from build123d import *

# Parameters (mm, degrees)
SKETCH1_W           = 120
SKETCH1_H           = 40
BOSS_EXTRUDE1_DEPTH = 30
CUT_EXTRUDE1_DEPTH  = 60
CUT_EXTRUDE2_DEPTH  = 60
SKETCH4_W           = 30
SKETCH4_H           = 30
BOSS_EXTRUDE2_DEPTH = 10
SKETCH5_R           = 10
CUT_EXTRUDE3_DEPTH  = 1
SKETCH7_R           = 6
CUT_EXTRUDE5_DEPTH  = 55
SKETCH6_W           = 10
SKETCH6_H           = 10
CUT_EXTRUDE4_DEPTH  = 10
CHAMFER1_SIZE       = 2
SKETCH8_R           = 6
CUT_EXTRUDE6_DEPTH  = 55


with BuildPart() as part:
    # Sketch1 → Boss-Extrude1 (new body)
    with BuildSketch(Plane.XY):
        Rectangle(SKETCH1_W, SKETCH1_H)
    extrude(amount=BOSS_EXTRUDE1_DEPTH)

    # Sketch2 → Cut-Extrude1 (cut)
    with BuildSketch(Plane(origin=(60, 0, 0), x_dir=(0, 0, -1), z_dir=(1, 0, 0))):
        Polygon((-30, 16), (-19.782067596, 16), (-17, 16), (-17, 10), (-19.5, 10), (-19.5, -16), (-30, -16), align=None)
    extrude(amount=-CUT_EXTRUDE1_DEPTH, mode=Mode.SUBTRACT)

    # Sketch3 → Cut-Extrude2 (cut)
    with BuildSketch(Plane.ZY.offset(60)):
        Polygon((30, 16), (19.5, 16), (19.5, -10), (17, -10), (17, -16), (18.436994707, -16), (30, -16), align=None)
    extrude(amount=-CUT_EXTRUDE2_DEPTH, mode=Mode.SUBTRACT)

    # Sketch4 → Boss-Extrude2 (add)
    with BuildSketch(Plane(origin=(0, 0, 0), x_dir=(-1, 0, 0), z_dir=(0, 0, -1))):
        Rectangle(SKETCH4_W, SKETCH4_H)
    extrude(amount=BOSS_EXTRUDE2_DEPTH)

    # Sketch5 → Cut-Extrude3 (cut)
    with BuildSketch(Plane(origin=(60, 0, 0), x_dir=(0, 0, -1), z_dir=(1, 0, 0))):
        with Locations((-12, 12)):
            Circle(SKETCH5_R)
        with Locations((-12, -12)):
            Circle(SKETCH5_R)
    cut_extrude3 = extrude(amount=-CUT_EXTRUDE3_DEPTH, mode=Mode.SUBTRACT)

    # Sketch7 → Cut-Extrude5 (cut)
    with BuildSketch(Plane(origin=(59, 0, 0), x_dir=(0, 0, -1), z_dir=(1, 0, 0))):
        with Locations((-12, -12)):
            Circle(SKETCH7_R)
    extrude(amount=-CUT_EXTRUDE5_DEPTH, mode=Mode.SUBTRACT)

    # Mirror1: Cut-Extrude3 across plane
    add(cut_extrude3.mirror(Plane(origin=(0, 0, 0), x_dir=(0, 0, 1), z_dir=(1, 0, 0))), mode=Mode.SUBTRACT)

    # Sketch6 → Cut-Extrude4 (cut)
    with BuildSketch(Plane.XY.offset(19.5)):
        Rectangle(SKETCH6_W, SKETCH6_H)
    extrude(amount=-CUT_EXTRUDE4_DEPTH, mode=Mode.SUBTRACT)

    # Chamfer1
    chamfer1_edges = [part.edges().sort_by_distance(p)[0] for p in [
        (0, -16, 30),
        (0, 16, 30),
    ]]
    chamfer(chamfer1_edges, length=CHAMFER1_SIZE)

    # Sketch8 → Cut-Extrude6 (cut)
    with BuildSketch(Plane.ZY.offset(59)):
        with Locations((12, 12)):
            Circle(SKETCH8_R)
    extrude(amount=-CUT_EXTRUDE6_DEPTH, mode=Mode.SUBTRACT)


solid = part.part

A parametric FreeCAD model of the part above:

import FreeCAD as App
import Part
import Sketcher
from FreeCAD import Vector


def edges_at(feature, points):
    """Names of the edges that pass closest to the given points."""
    edges = feature.Shape.Edges
    near = lambda p: min(range(len(edges)), key=lambda i: edges[i].distToShape(Part.Vertex(*p))[0])
    return sorted({f"Edge{near(p) + 1}" for p in points})

doc = App.newDocument("Part")
params = doc.addObject("Spreadsheet::Sheet", "Params")
for row, (alias, value) in enumerate([
    ("sketch1_width", "120 mm"),
    ("sketch1_height", "40 mm"),
    ("pad1_length", "30 mm"),
    ("sketch2_width", "32 mm"),
    ("sketch2_width2", "26 mm"),
    ("sketch2_height", "13 mm"),
    ("sketch2_height2", "10.5 mm"),
    ("pocket1_length", "60 mm"),
    ("sketch3_width", "26 mm"),
    ("sketch3_width2", "6 mm"),
    ("sketch3_height", "13 mm"),
    ("sketch3_height2", "10.5 mm"),
    ("pocket2_length", "60 mm"),
    ("sketch4_width", "30 mm"),
    ("pad2_length", "10 mm"),
    ("sketch5_diameter", "20 mm"),
    ("pocket3_length", "1 mm"),
    ("sketch6_diameter", "12 mm"),
    ("pocket4_length", "55 mm"),
    ("sketch7_width", "10 mm"),
    ("pocket5_length", "10 mm"),
    ("chamfer_size", "2 mm"),
    ("sketch8_diameter", "12 mm"),
    ("pocket6_length", "55 mm"),
], start=1):
    params.set(f"A{row}", alias)
    params.set(f"B{row}", "=" + value)
    params.setAlias(f"B{row}", alias)

body = doc.addObject("PartDesign::Body", "Body")

sketch1 = body.newObject("Sketcher::SketchObject", "Sketch")
sketch1.AttachmentSupport = (doc.getObject("XY_Plane"), [""])
sketch1.MapMode = "FlatFace"
sketch1.addGeometry(Part.LineSegment(Vector(-60, 20, 0), Vector(-60, -20, 0)), False)
sketch1.addGeometry(Part.LineSegment(Vector(-60, -20, 0), Vector(60, -20, 0)), False)
sketch1.addGeometry(Part.LineSegment(Vector(60, -20, 0), Vector(60, 20, 0)), False)
sketch1.addGeometry(Part.LineSegment(Vector(60, 20, 0), Vector(-60, 20, 0)), False)
sketch1.addConstraint(Sketcher.Constraint("Coincident", 0, 2, 1, 1))
sketch1.addConstraint(Sketcher.Constraint("Coincident", 1, 2, 2, 1))
sketch1.addConstraint(Sketcher.Constraint("Coincident", 2, 2, 3, 1))
sketch1.addConstraint(Sketcher.Constraint("Coincident", 3, 2, 0, 1))
sketch1.addConstraint(Sketcher.Constraint("Vertical", 0))
sketch1.addConstraint(Sketcher.Constraint("Horizontal", 1))
sketch1.addConstraint(Sketcher.Constraint("Vertical", 2))
sketch1.addConstraint(Sketcher.Constraint("Horizontal", 3))
sketch1.addConstraint(Sketcher.Constraint("Symmetric", 0, 2, 2, 2, -1, 1))
sketch1.addConstraint(Sketcher.Constraint("DistanceX", 1, 1, 1, 2, 120.0))
sketch1.addConstraint(Sketcher.Constraint("DistanceY", 0, 2, 0, 1, 40.0))
sketch1.setExpression("Constraints[9]", "Params.sketch1_width")
sketch1.setExpression("Constraints[10]", "Params.sketch1_height")
pad1 = body.newObject("PartDesign::Pad", "Pad")
pad1.Profile = sketch1
pad1.setExpression("Length", "Params.pad1_length")

sketch2 = body.newObject("Sketcher::SketchObject", "Sketch001")
sketch2.AttachmentSupport = (doc.getObject("YZ_Plane"), [""])
sketch2.MapMode = "FlatFace"
sketch2.AttachmentOffset = App.Placement(Vector(0, 0, 60), App.Rotation())
sketch2.addGeometry(Part.LineSegment(Vector(16, 17, 0), Vector(16, 30, 0)), False)
sketch2.addGeometry(Part.LineSegment(Vector(16, 30, 0), Vector(-16, 30, 0)), False)
sketch2.addGeometry(Part.LineSegment(Vector(-16, 30, 0), Vector(-16, 19.5, 0)), False)
sketch2.addGeometry(Part.LineSegment(Vector(-16, 19.5, 0), Vector(10, 19.5, 0)), False)
sketch2.addGeometry(Part.LineSegment(Vector(10, 19.5, 0), Vector(10, 17, 0)), False)
sketch2.addGeometry(Part.LineSegment(Vector(10, 17, 0), Vector(16, 17, 0)), False)
sketch2.addConstraint(Sketcher.Constraint("Coincident", 0, 2, 1, 1))
sketch2.addConstraint(Sketcher.Constraint("Coincident", 1, 2, 2, 1))
sketch2.addConstraint(Sketcher.Constraint("Coincident", 2, 2, 3, 1))
sketch2.addConstraint(Sketcher.Constraint("Coincident", 3, 2, 4, 1))
sketch2.addConstraint(Sketcher.Constraint("Coincident", 4, 2, 5, 1))
sketch2.addConstraint(Sketcher.Constraint("Coincident", 5, 2, 0, 1))
sketch2.addConstraint(Sketcher.Constraint("Vertical", 0))
sketch2.addConstraint(Sketcher.Constraint("Horizontal", 1))
sketch2.addConstraint(Sketcher.Constraint("Vertical", 2))
sketch2.addConstraint(Sketcher.Constraint("Horizontal", 3))
sketch2.addConstraint(Sketcher.Constraint("Vertical", 4))
sketch2.addConstraint(Sketcher.Constraint("Horizontal", 5))
sketch2.addConstraint(Sketcher.Constraint("DistanceX", 1, 2, 1, 1, 32.0))
sketch2.addConstraint(Sketcher.Constraint("DistanceX", 3, 1, 3, 2, 26.0))
sketch2.addConstraint(Sketcher.Constraint("DistanceY", 0, 1, 0, 2, 13.0))
sketch2.addConstraint(Sketcher.Constraint("DistanceY", 2, 2, 2, 1, 10.5))
sketch2.addConstraint(Sketcher.Constraint("DistanceX", -1, 1, 0, 2, 16.0))
sketch2.addConstraint(Sketcher.Constraint("DistanceY", -1, 1, 0, 2, 30.0))
sketch2.setExpression("Constraints[12]", "Params.sketch2_width")
sketch2.setExpression("Constraints[13]", "Params.sketch2_width2")
sketch2.setExpression("Constraints[14]", "Params.sketch2_height")
sketch2.setExpression("Constraints[15]", "Params.sketch2_height2")
pocket1 = body.newObject("PartDesign::Pocket", "Pocket")
pocket1.Profile = sketch2
pocket1.setExpression("Length", "Params.pocket1_length")

sketch3 = body.newObject("Sketcher::SketchObject", "Sketch002")
sketch3.AttachmentSupport = (doc.getObject("YZ_Plane"), [""])
sketch3.MapMode = "FlatFace"
sketch3.AttachmentOffset = App.Placement(Vector(0, 0, -60), App.Rotation())
sketch3.addGeometry(Part.LineSegment(Vector(16, 30, 0), Vector(16, 19.5, 0)), False)
sketch3.addGeometry(Part.LineSegment(Vector(16, 19.5, 0), Vector(-10, 19.5, 0)), False)
sketch3.addGeometry(Part.LineSegment(Vector(-10, 19.5, 0), Vector(-10, 17, 0)), False)
sketch3.addGeometry(Part.LineSegment(Vector(-10, 17, 0), Vector(-16, 17, 0)), False)
sketch3.addGeometry(Part.LineSegment(Vector(-16, 17, 0), Vector(-16, 30, 0)), False)
sketch3.addGeometry(Part.LineSegment(Vector(-16, 30, 0), Vector(16, 30, 0)), False)
sketch3.addConstraint(Sketcher.Constraint("Coincident", 0, 2, 1, 1))
sketch3.addConstraint(Sketcher.Constraint("Coincident", 1, 2, 2, 1))
sketch3.addConstraint(Sketcher.Constraint("Coincident", 2, 2, 3, 1))
sketch3.addConstraint(Sketcher.Constraint("Coincident", 3, 2, 4, 1))
sketch3.addConstraint(Sketcher.Constraint("Coincident", 4, 2, 5, 1))
sketch3.addConstraint(Sketcher.Constraint("Coincident", 5, 2, 0, 1))
sketch3.addConstraint(Sketcher.Constraint("Vertical", 0))
sketch3.addConstraint(Sketcher.Constraint("Horizontal", 1))
sketch3.addConstraint(Sketcher.Constraint("Vertical", 2))
sketch3.addConstraint(Sketcher.Constraint("Horizontal", 3))
sketch3.addConstraint(Sketcher.Constraint("Vertical", 4))
sketch3.addConstraint(Sketcher.Constraint("Horizontal", 5))
sketch3.addConstraint(Sketcher.Constraint("DistanceX", 1, 2, 1, 1, 26.0))
sketch3.addConstraint(Sketcher.Constraint("DistanceX", 3, 2, 3, 1, 6.0))
sketch3.addConstraint(Sketcher.Constraint("DistanceY", 4, 1, 4, 2, 13.0))
sketch3.addConstraint(Sketcher.Constraint("DistanceY", 0, 2, 0, 1, 10.5))
sketch3.addConstraint(Sketcher.Constraint("DistanceX", -1, 1, 0, 2, 16.0))
sketch3.addConstraint(Sketcher.Constraint("DistanceY", -1, 1, 2, 2, 17.0))
sketch3.setExpression("Constraints[12]", "Params.sketch3_width")
sketch3.setExpression("Constraints[13]", "Params.sketch3_width2")
sketch3.setExpression("Constraints[14]", "Params.sketch3_height")
sketch3.setExpression("Constraints[15]", "Params.sketch3_height2")
pocket2 = body.newObject("PartDesign::Pocket", "Pocket001")
pocket2.Profile = sketch3
pocket2.setExpression("Length", "Params.pocket2_length")
pocket2.Reversed = True

sketch4 = body.newObject("Sketcher::SketchObject", "Sketch003")
sketch4.AttachmentSupport = (doc.getObject("XY_Plane"), [""])
sketch4.MapMode = "FlatFace"
sketch4.addGeometry(Part.LineSegment(Vector(15, 15, 0), Vector(15, -15, 0)), False)
sketch4.addGeometry(Part.LineSegment(Vector(15, -15, 0), Vector(-15, -15, 0)), False)
sketch4.addGeometry(Part.LineSegment(Vector(-15, -15, 0), Vector(-15, 15, 0)), False)
sketch4.addGeometry(Part.LineSegment(Vector(-15, 15, 0), Vector(15, 15, 0)), False)
sketch4.addConstraint(Sketcher.Constraint("Coincident", 0, 2, 1, 1))
sketch4.addConstraint(Sketcher.Constraint("Coincident", 1, 2, 2, 1))
sketch4.addConstraint(Sketcher.Constraint("Coincident", 2, 2, 3, 1))
sketch4.addConstraint(Sketcher.Constraint("Coincident", 3, 2, 0, 1))
sketch4.addConstraint(Sketcher.Constraint("Vertical", 0))
sketch4.addConstraint(Sketcher.Constraint("Horizontal", 1))
sketch4.addConstraint(Sketcher.Constraint("Vertical", 2))
sketch4.addConstraint(Sketcher.Constraint("Horizontal", 3))
sketch4.addConstraint(Sketcher.Constraint("Symmetric", 0, 2, 2, 2, -1, 1))
sketch4.addConstraint(Sketcher.Constraint("Equal", 3, 0))
sketch4.addConstraint(Sketcher.Constraint("DistanceX", 1, 2, 1, 1, 30.0))
sketch4.setExpression("Constraints[10]", "Params.sketch4_width")
pad2 = body.newObject("PartDesign::Pad", "Pad001")
pad2.Profile = sketch4
pad2.setExpression("Length", "Params.pad2_length")
pad2.Reversed = True

sketch5 = body.newObject("Sketcher::SketchObject", "Sketch004")
sketch5.AttachmentSupport = (doc.getObject("YZ_Plane"), [""])
sketch5.MapMode = "FlatFace"
sketch5.AttachmentOffset = App.Placement(Vector(0, 0, 60), App.Rotation())
sketch5.addGeometry(Part.Circle(Vector(12, 12, 0), Vector(0, 0, 1), 10), False)
sketch5.addGeometry(Part.Circle(Vector(-12, 12, 0), Vector(0, 0, 1), 10), False)
sketch5.addConstraint(Sketcher.Constraint("Equal", 0, 1))
sketch5.addConstraint(Sketcher.Constraint("Symmetric", 0, 3, 1, 3, -2))
sketch5.addConstraint(Sketcher.Constraint("Diameter", 0, 20.0))
sketch5.addConstraint(Sketcher.Constraint("DistanceX", -1, 1, 0, 3, 12.0))
sketch5.addConstraint(Sketcher.Constraint("DistanceY", -1, 1, 0, 3, 12.0))
sketch5.setExpression("Constraints[2]", "Params.sketch5_diameter")
pocket3 = body.newObject("PartDesign::Pocket", "Pocket002")
pocket3.Profile = sketch5
pocket3.setExpression("Length", "Params.pocket3_length")

sketch6 = body.newObject("Sketcher::SketchObject", "Sketch005")
sketch6.AttachmentSupport = (doc.getObject("YZ_Plane"), [""])
sketch6.MapMode = "FlatFace"
sketch6.AttachmentOffset = App.Placement(Vector(0, 0, 59), App.Rotation())
sketch6.addGeometry(Part.Circle(Vector(-12, 12, 0), Vector(0, 0, 1), 6), False)
sketch6.addConstraint(Sketcher.Constraint("Diameter", 0, 12.0))
sketch6.addConstraint(Sketcher.Constraint("DistanceX", 0, 3, -1, 1, 12.0))
sketch6.addConstraint(Sketcher.Constraint("DistanceY", -1, 1, 0, 3, 12.0))
sketch6.setExpression("Constraints[0]", "Params.sketch6_diameter")
pocket4 = body.newObject("PartDesign::Pocket", "Pocket003")
pocket4.Profile = sketch6
pocket4.setExpression("Length", "Params.pocket4_length")
doc.recompute()

mirrored = body.newObject("PartDesign::Mirrored", "Mirrored")
mirrored.Originals = [pocket3]
mirrored.MirrorPlane = (doc.getObject("YZ_Plane"), [""])
body.Tip = mirrored

sketch7 = body.newObject("Sketcher::SketchObject", "Sketch006")
sketch7.AttachmentSupport = (doc.getObject("XY_Plane"), [""])
sketch7.MapMode = "FlatFace"
sketch7.AttachmentOffset = App.Placement(Vector(0, 0, 19.5), App.Rotation())
sketch7.addGeometry(Part.LineSegment(Vector(-5, 5, 0), Vector(-5, -5, 0)), False)
sketch7.addGeometry(Part.LineSegment(Vector(-5, -5, 0), Vector(5, -5, 0)), False)
sketch7.addGeometry(Part.LineSegment(Vector(5, -5, 0), Vector(5, 5, 0)), False)
sketch7.addGeometry(Part.LineSegment(Vector(5, 5, 0), Vector(-5, 5, 0)), False)
sketch7.addConstraint(Sketcher.Constraint("Coincident", 0, 2, 1, 1))
sketch7.addConstraint(Sketcher.Constraint("Coincident", 1, 2, 2, 1))
sketch7.addConstraint(Sketcher.Constraint("Coincident", 2, 2, 3, 1))
sketch7.addConstraint(Sketcher.Constraint("Coincident", 3, 2, 0, 1))
sketch7.addConstraint(Sketcher.Constraint("Vertical", 0))
sketch7.addConstraint(Sketcher.Constraint("Horizontal", 1))
sketch7.addConstraint(Sketcher.Constraint("Vertical", 2))
sketch7.addConstraint(Sketcher.Constraint("Horizontal", 3))
sketch7.addConstraint(Sketcher.Constraint("Symmetric", 0, 2, 2, 2, -1, 1))
sketch7.addConstraint(Sketcher.Constraint("Equal", 3, 0))
sketch7.addConstraint(Sketcher.Constraint("DistanceX", 1, 1, 1, 2, 10.0))
sketch7.setExpression("Constraints[10]", "Params.sketch7_width")
pocket5 = body.newObject("PartDesign::Pocket", "Pocket004")
pocket5.Profile = sketch7
pocket5.setExpression("Length", "Params.pocket5_length")
doc.recompute()

chamfer = body.newObject("PartDesign::Chamfer", "Chamfer")
chamfer.Base = (pocket5, edges_at(pocket5, [(0, -16, 30), (0, 16, 30)]))
chamfer.setExpression("Size", "Params.chamfer_size")

sketch8 = body.newObject("Sketcher::SketchObject", "Sketch007")
sketch8.AttachmentSupport = (doc.getObject("YZ_Plane"), [""])
sketch8.MapMode = "FlatFace"
sketch8.AttachmentOffset = App.Placement(Vector(0, 0, -59), App.Rotation())
sketch8.addGeometry(Part.Circle(Vector(12, 12, 0), Vector(0, 0, 1), 6), False)
sketch8.addConstraint(Sketcher.Constraint("Diameter", 0, 12.0))
sketch8.addConstraint(Sketcher.Constraint("DistanceX", -1, 1, 0, 3, 12.0))
sketch8.addConstraint(Sketcher.Constraint("DistanceY", -1, 1, 0, 3, 12.0))
sketch8.setExpression("Constraints[0]", "Params.sketch8_diameter")
pocket6 = body.newObject("PartDesign::Pocket", "Pocket005")
pocket6.Profile = sketch8
pocket6.setExpression("Length", "Params.pocket6_length")
pocket6.Reversed = True

doc.recompute()
